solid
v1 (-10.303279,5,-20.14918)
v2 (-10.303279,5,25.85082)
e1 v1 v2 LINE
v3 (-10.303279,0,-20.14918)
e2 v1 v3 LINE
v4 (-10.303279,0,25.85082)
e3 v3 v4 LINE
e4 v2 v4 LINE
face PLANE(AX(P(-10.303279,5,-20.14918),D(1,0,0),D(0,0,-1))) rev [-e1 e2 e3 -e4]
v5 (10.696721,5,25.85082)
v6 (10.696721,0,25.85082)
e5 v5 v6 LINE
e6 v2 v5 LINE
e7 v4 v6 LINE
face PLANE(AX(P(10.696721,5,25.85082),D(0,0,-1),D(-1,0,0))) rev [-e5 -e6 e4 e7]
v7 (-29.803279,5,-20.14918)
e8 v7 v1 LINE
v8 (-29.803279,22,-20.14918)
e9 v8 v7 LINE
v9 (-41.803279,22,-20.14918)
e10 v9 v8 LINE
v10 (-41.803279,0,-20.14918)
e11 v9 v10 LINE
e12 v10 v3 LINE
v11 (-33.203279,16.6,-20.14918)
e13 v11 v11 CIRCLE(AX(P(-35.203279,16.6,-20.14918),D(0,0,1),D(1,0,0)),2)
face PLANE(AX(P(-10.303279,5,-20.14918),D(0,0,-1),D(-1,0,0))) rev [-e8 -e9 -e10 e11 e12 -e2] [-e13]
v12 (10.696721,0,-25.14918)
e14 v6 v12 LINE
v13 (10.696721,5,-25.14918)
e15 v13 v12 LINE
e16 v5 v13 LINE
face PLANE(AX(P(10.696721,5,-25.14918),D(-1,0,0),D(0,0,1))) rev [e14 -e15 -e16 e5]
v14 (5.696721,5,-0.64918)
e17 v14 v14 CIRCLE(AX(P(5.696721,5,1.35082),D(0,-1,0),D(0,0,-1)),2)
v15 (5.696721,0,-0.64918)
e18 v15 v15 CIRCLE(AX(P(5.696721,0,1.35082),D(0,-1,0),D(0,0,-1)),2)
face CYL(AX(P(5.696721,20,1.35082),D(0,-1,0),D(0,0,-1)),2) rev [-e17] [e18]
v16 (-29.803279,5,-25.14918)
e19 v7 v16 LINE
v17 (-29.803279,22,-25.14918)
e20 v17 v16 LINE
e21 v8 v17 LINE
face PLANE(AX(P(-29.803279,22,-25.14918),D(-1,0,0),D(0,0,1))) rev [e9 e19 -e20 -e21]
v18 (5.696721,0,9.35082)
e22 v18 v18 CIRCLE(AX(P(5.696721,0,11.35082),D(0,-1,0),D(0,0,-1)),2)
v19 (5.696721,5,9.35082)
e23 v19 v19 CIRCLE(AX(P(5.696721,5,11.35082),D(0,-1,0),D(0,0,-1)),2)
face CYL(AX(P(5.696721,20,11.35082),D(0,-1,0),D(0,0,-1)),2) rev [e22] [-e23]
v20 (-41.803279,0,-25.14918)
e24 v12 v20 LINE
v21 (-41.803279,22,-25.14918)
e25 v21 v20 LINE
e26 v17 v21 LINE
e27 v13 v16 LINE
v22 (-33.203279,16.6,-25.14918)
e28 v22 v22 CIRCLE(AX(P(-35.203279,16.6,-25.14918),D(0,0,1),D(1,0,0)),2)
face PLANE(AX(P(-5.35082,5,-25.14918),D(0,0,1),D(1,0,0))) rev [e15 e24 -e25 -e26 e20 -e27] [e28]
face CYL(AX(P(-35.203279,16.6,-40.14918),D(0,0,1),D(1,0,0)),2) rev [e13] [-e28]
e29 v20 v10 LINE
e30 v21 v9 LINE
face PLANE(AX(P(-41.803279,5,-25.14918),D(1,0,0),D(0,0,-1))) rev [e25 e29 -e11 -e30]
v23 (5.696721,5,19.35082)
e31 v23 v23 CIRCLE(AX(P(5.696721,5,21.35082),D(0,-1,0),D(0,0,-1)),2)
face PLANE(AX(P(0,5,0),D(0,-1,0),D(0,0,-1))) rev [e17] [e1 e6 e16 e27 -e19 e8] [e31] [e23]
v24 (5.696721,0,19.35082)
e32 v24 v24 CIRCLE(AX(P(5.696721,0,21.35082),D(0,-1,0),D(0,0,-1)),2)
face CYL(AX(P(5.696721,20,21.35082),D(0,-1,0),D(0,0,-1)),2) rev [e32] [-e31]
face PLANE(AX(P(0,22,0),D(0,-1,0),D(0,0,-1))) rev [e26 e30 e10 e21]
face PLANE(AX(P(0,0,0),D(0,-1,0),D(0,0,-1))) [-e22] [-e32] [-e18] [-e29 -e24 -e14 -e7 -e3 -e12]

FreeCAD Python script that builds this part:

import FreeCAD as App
import Part
import Sketcher


def add_polygon(sketch, points):
    """Adds a closed chain of lines whose ends are joined by coincident constraints."""
    first, n = sketch.GeometryCount, len(points)
    for a, b in zip(points, points[1:] + points[:1]):
        sketch.addGeometry(Part.LineSegment(App.Vector(*a, 0), App.Vector(*b, 0)), False)
    for i in range(n):
        sketch.addConstraint(Sketcher.Constraint("Coincident", first + i, 2, first + (i + 1) % n, 1))

doc = App.newDocument("Part")
body = doc.addObject("PartDesign::Body", "Body")

# Sketch on XZ plane
sketch1 = body.newObject("Sketcher::SketchObject", "Sketch")
sketch1.AttachmentSupport = (doc.getObject("XZ_Plane"), [""])
sketch1.MapMode = "FlatFace"
add_polygon(sketch1, [(11, -25), (-42, -25), (-42, -20), (-10, -20), (-10, 26), (11, 26)])  # lines 0-5
sketch1.addConstraint([
    Sketcher.Constraint("Horizontal", 0),
    Sketcher.Constraint("Vertical", 1),
    Sketcher.Constraint("Horizontal", 2),
    Sketcher.Constraint("Vertical", 3),
    Sketcher.Constraint("Horizontal", 4),
    Sketcher.Constraint("Vertical", 5),
    Sketcher.Constraint("DistanceX", 4, 1, 4, 2, 21.0),
    Sketcher.Constraint("DistanceY", 1, 1, 1, 2, 5.0),
    Sketcher.Constraint("DistanceY", 3, 1, 3, 2, 46.0),
    Sketcher.Constraint("DistanceX", 0, 2, 0, 1, 52.5),
    Sketcher.Constraint("DistanceX", 0, 2, -1, 1, 41.803279),
    Sketcher.Constraint("DistanceY", 0, 2, -1, 1, 25.14918),
])
pad1 = body.newObject("PartDesign::Pad", "Pad")
pad1.Profile = sketch1
pad1.Length = 5
pad1.Reversed = True

# Sketch on XZ plane
sketch2 = body.newObject("Sketcher::SketchObject", "Sketch001")
sketch2.AttachmentSupport = (doc.getObject("XZ_Plane"), [""])
sketch2.MapMode = "FlatFace"
sketch2.AttachmentOffset = App.Placement(App.Vector(0, 0, -5), App.Rotation())
add_polygon(sketch2, [(-42, -25), (-42, -20), (-30, -20), (-30, -25)])  # lines 0-3
sketch2.addConstraint([
    Sketcher.Constraint("Vertical", 0),
    Sketcher.Constraint("Horizontal", 1),
    Sketcher.Constraint("Vertical", 2),
    Sketcher.Constraint("Horizontal", 3),
    Sketcher.Constraint("DistanceX", 1, 1, 1, 2, 12.0),
    Sketcher.Constraint("DistanceY", 0, 1, 0, 2, 5.0),
    Sketcher.Constraint("DistanceX", 0, 2, -1, 1, 41.803279),
    Sketcher.Constraint("DistanceY", 0, 2, -1, 1, 20.14918),
])
pad2 = body.newObject("PartDesign::Pad", "Pad001")
pad2.Profile = sketch2
pad2.Length = 17
pad2.Reversed = True

# Sketch on XZ plane
sketch3 = body.newObject("Sketcher::SketchObject", "Sketch002")
sketch3.AttachmentSupport = (doc.getObject("XZ_Plane"), [""])
sketch3.MapMode = "FlatFace"
sketch3.addGeometry([
    Part.Circle(App.Vector(5.7, 21.4, 0), App.Vector(0, 0, 1), 2),
    Part.Circle(App.Vector(5.7, 11.4, 0), App.Vector(0, 0, 1), 2),
    Part.Circle(App.Vector(5.7, 1.4, 0), App.Vector(0, 0, 1), 2),
], False)
sketch3.addConstraint([
    Sketcher.Constraint("Equal", 0, 1),
    Sketcher.Constraint("Equal", 1, 2),
    Sketcher.Constraint("Vertical", 0, 3, 1, 3),
    Sketcher.Constraint("Vertical", 1, 3, 2, 3),
    Sketcher.Constraint("Diameter", 0, 4.0),
    Sketcher.Constraint("DistanceY", 1, 3, 0, 3, 10.0),
    Sketcher.Constraint("DistanceY", 2, 3, 1, 3, 10.0),
    Sketcher.Constraint("DistanceX", -1, 1, 0, 3, 5.696721),
    Sketcher.Constraint("DistanceY", -1, 1, 0, 3, 21.35082),
])
pocket1 = body.newObject("PartDesign::Pocket", "Pocket")
pocket1.Profile = sketch3
pocket1.Length = 20

# Sketch on XY plane
sketch4 = body.newObject("Sketcher::SketchObject", "Sketch003")
sketch4.AttachmentSupport = (doc.getObject("XY_Plane"), [""])
sketch4.MapMode = "FlatFace"
sketch4.AttachmentOffset = App.Placement(App.Vector(0, 0, -20.14918), App.Rotation())
sketch4.addGeometry(Part.Circle(App.Vector(-35.2, 16.6, 0), App.Vector(0, 0, 1), 2), False)
sketch4.addConstraint([
    Sketcher.Constraint("Diameter", 0, 4.0),
    Sketcher.Constraint("DistanceY", -1, 1, 0, 3, 16.6),
    Sketcher.Constraint("DistanceX", 0, 3, -1, 1, 35.203279),
])
pocket2 = body.newObject("PartDesign::Pocket", "Pocket001")
pocket2.Profile = sketch4
pocket2.Length = 20

doc.recompute()
